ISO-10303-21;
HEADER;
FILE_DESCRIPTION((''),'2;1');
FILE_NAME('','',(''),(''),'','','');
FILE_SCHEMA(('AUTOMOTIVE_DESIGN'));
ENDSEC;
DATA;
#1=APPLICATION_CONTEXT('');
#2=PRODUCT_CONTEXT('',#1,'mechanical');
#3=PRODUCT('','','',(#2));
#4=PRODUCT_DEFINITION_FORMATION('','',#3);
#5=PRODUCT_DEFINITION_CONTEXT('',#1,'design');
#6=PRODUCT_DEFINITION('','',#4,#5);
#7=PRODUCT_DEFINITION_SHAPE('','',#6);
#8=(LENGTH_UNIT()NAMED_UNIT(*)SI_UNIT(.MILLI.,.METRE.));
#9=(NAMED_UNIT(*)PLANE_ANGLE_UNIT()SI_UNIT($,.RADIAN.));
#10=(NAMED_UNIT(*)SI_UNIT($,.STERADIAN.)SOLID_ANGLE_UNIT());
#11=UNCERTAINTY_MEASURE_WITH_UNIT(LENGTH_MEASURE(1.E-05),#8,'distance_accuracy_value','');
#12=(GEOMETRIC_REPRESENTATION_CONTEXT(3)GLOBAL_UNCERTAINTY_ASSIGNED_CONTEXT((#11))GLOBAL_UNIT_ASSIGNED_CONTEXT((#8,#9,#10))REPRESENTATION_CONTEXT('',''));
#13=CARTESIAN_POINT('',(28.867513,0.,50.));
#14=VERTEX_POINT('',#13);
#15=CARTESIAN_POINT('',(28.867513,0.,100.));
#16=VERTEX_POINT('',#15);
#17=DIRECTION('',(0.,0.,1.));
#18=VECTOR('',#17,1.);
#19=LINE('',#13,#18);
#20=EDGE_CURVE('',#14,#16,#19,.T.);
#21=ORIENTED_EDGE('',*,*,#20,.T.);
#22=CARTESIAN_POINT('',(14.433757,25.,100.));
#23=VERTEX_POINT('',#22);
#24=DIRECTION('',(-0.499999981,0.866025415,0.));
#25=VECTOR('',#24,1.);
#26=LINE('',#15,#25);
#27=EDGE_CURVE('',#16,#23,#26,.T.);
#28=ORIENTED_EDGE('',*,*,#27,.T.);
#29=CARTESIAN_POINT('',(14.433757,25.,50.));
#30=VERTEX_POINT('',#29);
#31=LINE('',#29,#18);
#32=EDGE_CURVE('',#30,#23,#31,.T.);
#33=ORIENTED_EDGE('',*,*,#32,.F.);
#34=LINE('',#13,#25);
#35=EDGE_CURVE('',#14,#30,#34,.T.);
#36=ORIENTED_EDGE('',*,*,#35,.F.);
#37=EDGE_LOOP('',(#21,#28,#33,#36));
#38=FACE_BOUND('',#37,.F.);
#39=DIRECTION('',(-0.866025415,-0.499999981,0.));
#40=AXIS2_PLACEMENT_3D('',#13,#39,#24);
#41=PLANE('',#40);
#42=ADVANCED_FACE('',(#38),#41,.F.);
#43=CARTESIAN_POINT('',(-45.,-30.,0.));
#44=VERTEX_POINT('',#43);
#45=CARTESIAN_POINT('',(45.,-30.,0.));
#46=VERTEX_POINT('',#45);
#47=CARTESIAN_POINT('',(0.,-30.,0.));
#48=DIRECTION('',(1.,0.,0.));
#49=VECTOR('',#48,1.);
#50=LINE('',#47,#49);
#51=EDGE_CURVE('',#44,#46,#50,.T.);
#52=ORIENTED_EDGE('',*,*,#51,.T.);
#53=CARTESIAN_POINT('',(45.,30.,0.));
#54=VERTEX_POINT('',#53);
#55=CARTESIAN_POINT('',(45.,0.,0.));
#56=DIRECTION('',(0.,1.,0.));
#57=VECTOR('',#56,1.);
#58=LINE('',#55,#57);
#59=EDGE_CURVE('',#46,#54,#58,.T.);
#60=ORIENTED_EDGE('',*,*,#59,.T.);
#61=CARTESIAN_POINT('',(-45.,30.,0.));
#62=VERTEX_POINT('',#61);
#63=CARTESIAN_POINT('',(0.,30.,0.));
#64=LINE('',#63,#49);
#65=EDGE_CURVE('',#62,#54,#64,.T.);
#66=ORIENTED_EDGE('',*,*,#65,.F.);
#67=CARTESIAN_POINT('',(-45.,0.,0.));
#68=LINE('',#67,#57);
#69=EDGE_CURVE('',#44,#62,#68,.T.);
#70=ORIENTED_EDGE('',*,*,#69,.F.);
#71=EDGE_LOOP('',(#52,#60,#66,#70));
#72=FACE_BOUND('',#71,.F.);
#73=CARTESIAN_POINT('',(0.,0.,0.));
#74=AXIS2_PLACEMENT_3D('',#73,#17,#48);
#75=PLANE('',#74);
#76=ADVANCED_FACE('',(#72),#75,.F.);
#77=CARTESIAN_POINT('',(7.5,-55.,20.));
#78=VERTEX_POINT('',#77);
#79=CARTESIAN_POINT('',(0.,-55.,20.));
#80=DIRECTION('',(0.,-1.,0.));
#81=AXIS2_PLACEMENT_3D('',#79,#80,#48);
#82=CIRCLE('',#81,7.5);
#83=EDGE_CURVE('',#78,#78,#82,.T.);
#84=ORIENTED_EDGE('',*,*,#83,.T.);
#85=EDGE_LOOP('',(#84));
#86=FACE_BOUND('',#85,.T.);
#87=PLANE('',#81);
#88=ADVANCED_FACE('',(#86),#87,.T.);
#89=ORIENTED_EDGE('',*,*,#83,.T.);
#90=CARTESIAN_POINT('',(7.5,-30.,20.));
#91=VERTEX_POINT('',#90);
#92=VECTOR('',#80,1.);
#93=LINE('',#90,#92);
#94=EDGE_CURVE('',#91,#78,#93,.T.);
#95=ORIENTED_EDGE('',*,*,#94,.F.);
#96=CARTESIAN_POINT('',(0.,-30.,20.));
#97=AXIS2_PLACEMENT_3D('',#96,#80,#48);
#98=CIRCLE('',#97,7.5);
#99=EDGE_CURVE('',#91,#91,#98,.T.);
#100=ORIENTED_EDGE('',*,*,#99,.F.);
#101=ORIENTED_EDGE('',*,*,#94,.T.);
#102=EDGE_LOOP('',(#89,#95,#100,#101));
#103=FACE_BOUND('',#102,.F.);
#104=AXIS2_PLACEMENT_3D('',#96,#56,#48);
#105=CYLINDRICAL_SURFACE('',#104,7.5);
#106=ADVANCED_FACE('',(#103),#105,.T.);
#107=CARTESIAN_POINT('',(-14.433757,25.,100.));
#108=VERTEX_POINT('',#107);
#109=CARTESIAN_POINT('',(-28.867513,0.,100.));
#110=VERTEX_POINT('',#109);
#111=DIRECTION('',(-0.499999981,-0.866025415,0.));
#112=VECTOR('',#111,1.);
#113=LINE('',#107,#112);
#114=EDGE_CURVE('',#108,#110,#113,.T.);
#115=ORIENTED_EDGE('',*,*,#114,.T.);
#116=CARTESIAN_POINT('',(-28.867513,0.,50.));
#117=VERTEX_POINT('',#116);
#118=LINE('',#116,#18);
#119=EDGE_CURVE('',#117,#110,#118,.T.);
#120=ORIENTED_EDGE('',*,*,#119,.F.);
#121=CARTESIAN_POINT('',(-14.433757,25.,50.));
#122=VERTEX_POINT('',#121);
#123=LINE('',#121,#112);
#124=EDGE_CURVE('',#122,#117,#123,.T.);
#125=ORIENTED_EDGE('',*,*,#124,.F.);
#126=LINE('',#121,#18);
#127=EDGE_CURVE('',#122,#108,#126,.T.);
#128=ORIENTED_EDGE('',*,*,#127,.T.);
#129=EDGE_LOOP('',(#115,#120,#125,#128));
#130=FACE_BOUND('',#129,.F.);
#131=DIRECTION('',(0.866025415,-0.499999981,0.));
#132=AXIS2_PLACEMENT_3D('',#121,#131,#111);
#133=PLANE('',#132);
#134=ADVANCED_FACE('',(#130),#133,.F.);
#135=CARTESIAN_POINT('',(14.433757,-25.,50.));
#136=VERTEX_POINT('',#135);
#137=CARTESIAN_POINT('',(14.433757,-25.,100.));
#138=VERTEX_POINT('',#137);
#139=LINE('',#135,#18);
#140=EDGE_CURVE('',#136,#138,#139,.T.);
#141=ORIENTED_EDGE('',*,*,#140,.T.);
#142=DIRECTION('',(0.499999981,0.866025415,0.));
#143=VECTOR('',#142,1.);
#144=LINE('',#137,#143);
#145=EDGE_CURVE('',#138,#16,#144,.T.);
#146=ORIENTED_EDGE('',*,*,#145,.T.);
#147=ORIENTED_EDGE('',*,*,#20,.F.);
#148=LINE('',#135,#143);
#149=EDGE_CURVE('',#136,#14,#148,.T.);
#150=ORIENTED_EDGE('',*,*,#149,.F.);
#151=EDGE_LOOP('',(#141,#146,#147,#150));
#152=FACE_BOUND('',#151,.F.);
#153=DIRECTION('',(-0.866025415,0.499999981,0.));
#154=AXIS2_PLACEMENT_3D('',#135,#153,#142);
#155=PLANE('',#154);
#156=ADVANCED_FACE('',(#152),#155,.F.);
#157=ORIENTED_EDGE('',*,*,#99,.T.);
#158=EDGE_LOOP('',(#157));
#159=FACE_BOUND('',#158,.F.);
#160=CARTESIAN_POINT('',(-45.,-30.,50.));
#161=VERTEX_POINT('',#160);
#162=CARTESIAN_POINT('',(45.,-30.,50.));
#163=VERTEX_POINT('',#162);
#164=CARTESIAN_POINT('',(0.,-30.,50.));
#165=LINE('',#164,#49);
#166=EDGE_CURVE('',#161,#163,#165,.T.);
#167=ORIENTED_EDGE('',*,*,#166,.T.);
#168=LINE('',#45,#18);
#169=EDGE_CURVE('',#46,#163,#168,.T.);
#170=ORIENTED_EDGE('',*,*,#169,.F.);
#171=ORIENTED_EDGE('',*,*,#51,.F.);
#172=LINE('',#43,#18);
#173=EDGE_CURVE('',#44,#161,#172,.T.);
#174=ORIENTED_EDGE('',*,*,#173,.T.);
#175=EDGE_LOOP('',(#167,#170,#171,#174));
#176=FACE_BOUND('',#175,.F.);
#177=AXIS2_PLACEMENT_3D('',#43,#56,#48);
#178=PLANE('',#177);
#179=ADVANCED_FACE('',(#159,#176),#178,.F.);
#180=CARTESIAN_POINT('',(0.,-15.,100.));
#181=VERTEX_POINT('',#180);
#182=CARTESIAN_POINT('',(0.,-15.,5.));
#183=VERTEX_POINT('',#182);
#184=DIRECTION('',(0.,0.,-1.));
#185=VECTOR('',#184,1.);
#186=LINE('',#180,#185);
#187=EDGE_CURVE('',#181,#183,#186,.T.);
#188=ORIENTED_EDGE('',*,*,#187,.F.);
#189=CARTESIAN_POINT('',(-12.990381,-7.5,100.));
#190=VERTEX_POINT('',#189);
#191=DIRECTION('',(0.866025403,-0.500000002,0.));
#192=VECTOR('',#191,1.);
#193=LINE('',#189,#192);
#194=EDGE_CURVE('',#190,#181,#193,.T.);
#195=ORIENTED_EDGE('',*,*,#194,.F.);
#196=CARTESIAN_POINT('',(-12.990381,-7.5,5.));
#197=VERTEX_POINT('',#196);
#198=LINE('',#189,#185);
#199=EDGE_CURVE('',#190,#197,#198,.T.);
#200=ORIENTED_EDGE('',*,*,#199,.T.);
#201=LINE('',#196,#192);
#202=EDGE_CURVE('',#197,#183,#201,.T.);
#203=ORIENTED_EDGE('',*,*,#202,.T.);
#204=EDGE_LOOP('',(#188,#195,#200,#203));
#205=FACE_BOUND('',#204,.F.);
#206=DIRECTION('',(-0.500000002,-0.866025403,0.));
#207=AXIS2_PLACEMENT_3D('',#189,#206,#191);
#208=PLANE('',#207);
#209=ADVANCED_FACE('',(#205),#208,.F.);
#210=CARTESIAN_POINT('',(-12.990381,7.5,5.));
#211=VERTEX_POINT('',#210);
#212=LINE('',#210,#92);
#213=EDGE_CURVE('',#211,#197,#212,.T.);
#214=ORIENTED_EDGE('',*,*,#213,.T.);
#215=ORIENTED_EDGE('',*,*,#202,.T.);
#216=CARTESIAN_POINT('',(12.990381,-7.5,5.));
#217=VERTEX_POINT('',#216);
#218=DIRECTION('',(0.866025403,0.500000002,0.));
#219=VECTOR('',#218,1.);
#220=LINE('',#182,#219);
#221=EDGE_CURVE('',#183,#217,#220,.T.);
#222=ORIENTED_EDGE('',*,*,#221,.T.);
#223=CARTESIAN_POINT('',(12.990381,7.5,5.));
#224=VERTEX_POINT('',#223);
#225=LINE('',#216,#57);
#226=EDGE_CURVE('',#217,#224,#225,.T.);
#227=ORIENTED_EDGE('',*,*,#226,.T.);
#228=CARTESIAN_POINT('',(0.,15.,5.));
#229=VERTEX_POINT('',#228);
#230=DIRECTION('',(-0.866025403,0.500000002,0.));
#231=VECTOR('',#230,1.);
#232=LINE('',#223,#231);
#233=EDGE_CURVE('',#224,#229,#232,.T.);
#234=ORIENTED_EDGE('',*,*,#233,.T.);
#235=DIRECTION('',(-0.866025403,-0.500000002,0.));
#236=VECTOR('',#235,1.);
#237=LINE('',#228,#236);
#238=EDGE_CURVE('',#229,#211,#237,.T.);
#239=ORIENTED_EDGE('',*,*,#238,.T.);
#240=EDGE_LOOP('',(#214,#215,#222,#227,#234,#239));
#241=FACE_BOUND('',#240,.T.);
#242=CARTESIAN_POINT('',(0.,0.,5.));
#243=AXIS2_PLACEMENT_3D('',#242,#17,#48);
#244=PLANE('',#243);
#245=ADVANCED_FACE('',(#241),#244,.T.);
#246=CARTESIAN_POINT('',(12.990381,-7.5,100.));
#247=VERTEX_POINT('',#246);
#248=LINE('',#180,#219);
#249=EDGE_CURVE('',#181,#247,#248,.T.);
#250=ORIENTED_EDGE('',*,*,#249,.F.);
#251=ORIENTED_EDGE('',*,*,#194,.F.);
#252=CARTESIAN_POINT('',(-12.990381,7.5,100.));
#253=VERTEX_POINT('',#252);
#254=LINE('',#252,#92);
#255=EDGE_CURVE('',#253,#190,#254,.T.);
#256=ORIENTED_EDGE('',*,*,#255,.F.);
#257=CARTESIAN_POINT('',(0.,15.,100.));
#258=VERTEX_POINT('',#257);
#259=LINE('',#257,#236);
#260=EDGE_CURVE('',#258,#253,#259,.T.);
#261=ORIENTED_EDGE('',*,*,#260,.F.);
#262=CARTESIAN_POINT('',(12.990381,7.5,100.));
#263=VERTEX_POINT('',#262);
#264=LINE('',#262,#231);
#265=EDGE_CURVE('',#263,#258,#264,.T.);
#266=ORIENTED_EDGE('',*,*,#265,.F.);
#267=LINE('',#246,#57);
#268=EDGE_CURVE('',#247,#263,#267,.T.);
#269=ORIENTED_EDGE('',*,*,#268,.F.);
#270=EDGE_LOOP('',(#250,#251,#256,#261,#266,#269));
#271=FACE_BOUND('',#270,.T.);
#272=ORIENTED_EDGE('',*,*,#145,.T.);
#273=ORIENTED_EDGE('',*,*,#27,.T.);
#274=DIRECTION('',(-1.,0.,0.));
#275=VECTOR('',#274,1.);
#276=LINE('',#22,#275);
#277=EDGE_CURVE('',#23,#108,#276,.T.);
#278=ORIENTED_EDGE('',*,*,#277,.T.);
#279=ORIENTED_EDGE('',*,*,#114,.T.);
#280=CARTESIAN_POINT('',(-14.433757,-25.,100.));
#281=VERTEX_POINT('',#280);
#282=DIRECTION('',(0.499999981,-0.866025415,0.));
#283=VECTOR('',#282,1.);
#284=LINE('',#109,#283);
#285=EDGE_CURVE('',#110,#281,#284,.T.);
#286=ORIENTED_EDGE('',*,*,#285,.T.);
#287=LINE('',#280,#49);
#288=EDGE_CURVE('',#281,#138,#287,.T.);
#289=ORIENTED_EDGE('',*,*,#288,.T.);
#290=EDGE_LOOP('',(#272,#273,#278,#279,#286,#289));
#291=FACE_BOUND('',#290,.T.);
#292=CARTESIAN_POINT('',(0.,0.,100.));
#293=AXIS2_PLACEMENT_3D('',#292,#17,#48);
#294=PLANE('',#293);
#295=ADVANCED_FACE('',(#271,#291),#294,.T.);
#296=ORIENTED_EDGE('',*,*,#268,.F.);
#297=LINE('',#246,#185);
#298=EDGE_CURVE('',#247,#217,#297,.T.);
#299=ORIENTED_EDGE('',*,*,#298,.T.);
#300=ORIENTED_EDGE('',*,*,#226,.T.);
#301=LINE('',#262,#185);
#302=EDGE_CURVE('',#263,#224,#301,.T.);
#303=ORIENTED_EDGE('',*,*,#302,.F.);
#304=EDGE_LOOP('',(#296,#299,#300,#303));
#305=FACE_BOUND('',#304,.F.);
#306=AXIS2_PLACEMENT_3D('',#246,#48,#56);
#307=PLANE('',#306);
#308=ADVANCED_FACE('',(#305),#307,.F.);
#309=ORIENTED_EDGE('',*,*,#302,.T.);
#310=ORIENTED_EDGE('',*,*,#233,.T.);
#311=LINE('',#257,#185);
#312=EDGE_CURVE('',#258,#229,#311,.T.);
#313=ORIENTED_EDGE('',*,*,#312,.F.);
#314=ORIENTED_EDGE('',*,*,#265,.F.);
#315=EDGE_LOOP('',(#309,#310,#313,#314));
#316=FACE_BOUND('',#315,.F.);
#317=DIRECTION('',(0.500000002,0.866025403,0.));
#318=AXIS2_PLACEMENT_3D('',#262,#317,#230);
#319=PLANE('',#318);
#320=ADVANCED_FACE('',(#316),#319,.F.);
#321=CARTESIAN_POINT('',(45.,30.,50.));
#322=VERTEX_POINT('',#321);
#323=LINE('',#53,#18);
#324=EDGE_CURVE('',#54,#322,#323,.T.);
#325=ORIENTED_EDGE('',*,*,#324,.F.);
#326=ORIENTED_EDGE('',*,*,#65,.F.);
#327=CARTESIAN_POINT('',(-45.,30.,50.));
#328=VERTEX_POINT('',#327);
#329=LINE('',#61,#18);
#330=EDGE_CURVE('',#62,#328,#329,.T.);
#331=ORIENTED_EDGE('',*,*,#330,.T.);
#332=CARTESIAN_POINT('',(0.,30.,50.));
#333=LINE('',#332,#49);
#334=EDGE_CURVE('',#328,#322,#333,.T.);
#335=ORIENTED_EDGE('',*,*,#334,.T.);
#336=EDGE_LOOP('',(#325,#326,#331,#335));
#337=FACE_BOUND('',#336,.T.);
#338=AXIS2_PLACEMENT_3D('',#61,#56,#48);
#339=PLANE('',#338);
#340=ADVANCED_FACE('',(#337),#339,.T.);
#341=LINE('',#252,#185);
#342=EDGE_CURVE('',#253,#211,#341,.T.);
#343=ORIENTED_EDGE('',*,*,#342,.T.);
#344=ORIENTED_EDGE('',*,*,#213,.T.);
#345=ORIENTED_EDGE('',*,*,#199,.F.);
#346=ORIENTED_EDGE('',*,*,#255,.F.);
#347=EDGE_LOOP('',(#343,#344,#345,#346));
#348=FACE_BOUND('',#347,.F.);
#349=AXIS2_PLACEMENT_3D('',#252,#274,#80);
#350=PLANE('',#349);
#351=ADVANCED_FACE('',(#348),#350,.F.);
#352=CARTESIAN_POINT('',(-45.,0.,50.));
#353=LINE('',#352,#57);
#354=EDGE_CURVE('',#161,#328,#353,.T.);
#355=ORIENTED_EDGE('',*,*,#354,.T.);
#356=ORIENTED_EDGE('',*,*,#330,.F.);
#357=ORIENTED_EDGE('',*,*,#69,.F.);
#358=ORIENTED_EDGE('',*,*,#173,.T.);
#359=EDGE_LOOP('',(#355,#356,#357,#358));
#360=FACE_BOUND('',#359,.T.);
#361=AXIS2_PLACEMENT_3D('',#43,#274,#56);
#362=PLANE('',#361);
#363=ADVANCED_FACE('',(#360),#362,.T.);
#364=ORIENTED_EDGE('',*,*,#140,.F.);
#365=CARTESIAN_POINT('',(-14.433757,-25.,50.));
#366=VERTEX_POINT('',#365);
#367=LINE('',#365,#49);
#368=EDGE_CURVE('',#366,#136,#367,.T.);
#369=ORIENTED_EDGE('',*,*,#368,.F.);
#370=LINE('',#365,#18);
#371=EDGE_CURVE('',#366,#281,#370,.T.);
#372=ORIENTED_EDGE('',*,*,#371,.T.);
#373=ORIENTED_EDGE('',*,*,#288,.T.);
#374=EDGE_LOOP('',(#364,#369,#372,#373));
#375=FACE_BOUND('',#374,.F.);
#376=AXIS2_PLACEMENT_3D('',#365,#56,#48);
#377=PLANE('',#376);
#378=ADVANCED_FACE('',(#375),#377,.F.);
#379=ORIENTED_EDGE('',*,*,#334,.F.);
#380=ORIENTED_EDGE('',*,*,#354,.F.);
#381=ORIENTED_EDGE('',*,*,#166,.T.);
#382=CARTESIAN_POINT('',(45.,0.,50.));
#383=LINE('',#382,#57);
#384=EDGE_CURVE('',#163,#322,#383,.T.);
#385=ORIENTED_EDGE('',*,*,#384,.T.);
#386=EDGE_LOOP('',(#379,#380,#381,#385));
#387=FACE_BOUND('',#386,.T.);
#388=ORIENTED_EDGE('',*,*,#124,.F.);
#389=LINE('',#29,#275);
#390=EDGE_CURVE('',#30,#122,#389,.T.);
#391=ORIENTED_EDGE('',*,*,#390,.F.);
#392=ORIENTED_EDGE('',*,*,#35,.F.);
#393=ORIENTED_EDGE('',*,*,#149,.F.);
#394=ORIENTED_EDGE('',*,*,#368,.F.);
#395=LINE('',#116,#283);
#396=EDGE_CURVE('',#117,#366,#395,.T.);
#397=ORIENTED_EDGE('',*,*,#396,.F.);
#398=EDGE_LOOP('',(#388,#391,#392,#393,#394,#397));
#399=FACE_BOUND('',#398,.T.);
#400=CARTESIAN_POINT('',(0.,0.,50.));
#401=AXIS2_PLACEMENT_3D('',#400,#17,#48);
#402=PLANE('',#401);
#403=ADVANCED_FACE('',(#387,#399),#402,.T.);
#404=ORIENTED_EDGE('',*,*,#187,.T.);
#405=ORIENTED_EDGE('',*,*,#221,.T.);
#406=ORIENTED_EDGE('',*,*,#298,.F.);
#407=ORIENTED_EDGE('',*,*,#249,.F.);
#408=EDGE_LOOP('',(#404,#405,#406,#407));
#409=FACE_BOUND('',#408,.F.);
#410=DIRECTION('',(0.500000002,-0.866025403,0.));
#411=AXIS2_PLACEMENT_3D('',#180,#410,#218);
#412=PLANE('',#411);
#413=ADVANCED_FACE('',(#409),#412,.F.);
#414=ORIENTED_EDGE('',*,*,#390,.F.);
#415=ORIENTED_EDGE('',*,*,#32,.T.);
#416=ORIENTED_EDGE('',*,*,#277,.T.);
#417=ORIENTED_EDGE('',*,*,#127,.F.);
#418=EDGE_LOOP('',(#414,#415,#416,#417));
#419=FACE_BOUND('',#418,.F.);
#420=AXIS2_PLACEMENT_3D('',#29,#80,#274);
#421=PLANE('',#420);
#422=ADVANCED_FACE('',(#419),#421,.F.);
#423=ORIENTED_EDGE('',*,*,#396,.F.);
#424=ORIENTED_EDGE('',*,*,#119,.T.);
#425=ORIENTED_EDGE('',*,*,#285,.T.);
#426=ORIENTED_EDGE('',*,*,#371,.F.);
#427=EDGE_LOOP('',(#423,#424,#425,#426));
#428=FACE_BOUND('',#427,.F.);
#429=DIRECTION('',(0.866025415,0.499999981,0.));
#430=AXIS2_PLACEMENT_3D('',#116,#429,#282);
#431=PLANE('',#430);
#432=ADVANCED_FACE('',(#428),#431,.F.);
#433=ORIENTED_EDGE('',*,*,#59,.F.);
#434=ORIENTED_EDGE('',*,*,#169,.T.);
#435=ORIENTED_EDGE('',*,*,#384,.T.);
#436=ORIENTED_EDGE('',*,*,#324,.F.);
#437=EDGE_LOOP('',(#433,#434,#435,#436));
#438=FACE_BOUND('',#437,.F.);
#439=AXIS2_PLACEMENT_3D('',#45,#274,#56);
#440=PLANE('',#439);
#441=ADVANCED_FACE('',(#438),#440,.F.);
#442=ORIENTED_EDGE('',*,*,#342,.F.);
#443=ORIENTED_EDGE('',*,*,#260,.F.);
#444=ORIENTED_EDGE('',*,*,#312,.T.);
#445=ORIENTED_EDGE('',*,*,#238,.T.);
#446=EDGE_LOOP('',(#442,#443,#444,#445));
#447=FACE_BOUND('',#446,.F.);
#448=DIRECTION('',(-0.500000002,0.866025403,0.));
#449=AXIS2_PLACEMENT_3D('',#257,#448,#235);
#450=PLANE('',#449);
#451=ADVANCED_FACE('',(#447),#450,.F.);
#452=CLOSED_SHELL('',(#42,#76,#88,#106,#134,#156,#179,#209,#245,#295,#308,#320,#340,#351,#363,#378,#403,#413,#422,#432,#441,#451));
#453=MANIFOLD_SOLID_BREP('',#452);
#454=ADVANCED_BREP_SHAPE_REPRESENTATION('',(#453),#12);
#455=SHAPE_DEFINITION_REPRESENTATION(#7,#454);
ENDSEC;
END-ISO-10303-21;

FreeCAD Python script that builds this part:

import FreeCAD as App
import Part
import Sketcher
from FreeCAD import Vector
Q = App.Units.Quantity

doc = App.newDocument("Part")
body = doc.addObject("PartDesign::Body", "Body")

# Sketch on XY plane
sketch1 = body.newObject("Sketcher::SketchObject", "Sketch")
sketch1.AttachmentSupport = (doc.getObject("XY_Plane"), [""])
sketch1.MapMode = "FlatFace"
sketch1.addGeometry([
    Part.LineSegment(Vector(-45, 30, 0), Vector(-45, -30, 0)),
    Part.LineSegment(Vector(-45, -30, 0), Vector(45, -30, 0)),
    Part.LineSegment(Vector(45, -30, 0), Vector(45, 30, 0)),
    Part.LineSegment(Vector(45, 30, 0), Vector(-45, 30, 0)),
], False)
sketch1.addConstraint([
    Sketcher.Constraint("Coincident", 0, 2, 1, 1),
    Sketcher.Constraint("Coincident", 1, 2, 2, 1),
    Sketcher.Constraint("Coincident", 2, 2, 3, 1),
    Sketcher.Constraint("Coincident", 3, 2, 0, 1),
    Sketcher.Constraint("Vertical", 0),
    Sketcher.Constraint("Horizontal", 1),
    Sketcher.Constraint("Vertical", 2),
    Sketcher.Constraint("Horizontal", 3),
    Sketcher.Constraint("Symmetric", 0, 2, 2, 2, -1, 1),
    Sketcher.Constraint("DistanceX", 1, 1, 1, 2, 90.0),
    Sketcher.Constraint("DistanceY", 0, 2, 0, 1, 60.0),
])
pad1 = body.newObject("PartDesign::Pad", "Pad")
pad1.Profile = sketch1
pad1.Length = 50

# Sketch on XZ plane
sketch2 = body.newObject("Sketcher::SketchObject", "Sketch001")
sketch2.AttachmentSupport = (doc.getObject("XZ_Plane"), [""])
sketch2.MapMode = "FlatFace"
sketch2.AttachmentOffset = App.Placement(Vector(0, 0, 30), App.Rotation())
sketch2.addGeometry(Part.Circle(Vector(0, 20, 0), Vector(0, 0, 1), 8), False)
sketch2.addConstraint([
    Sketcher.Constraint("PointOnObject", 0, 3, -2),
    Sketcher.Constraint("Diameter", 0, 15.0),
    Sketcher.Constraint("DistanceY", -1, 1, 0, 3, 20.0),
])
pad2 = body.newObject("PartDesign::Pad", "Pad001")
pad2.Profile = sketch2
pad2.Length = 25

# Sketch on XY plane
sketch3 = body.newObject("Sketcher::SketchObject", "Sketch002")
sketch3.AttachmentSupport = (doc.getObject("XY_Plane"), [""])
sketch3.MapMode = "FlatFace"
sketch3.AttachmentOffset = App.Placement(Vector(0, 0, 50), App.Rotation())
sketch3.addGeometry([
    Part.LineSegment(Vector(-14, -25, 0), Vector(14, -25, 0)),  # 0
    Part.LineSegment(Vector(14, -25, 0), Vector(29, 0, 0)),  # 1
    Part.LineSegment(Vector(29, 0, 0), Vector(14, 25, 0)),  # 2
    Part.LineSegment(Vector(14, 25, 0), Vector(-14, 25, 0)),  # 3
    Part.LineSegment(Vector(-14, 25, 0), Vector(-29, 0, 0)),  # 4
    Part.LineSegment(Vector(-29, 0, 0), Vector(-14, -25, 0)),  # 5
], False)
sketch3.addConstraint([
    Sketcher.Constraint("Coincident", 0, 2, 1, 1),
    Sketcher.Constraint("Coincident", 1, 2, 2, 1),
    Sketcher.Constraint("Coincident", 2, 2, 3, 1),
    Sketcher.Constraint("Coincident", 3, 2, 4, 1),
    Sketcher.Constraint("Coincident", 4, 2, 5, 1),
    Sketcher.Constraint("Coincident", 5, 2, 0, 1),
    Sketcher.Constraint("Horizontal", 0),
    Sketcher.Constraint("Horizontal", 3),
    Sketcher.Constraint("Symmetric", 0, 2, 3, 2, -1, 1),
    Sketcher.Constraint("Symmetric", 1, 2, 4, 2, -1, 1),
    Sketcher.Constraint("PointOnObject", 1, 2, -1),
    Sketcher.Constraint("Parallel", 2, 5),
    Sketcher.Constraint("Vertical", 0, 2, 2, 2),
    Sketcher.Constraint("Angle", 1, Q("60.000001 deg")),
    Sketcher.Constraint("DistanceY", 0, 2, -1, 1, 25.0),
    Sketcher.Constraint("DistanceX", 0, 1, 0, 2, 28.867514),
])
pad3 = body.newObject("PartDesign::Pad", "Pad002")
pad3.Profile = sketch3
pad3.Length = 50

# Sketch on XY plane
sketch4 = body.newObject("Sketcher::SketchObject", "Sketch003")
sketch4.AttachmentSupport = (doc.getObject("XY_Plane"), [""])
sketch4.MapMode = "FlatFace"
sketch4.AttachmentOffset = App.Placement(Vector(0, 0, 100), App.Rotation())
sketch4.addGeometry([
    Part.LineSegment(Vector(13, 8, 0), Vector(0, 15, 0)),  # 0
    Part.LineSegment(Vector(0, 15, 0), Vector(-13, 8, 0)),  # 1
    Part.LineSegment(Vector(-13, 8, 0), Vector(-13, -8, 0)),  # 2
    Part.LineSegment(Vector(-13, -8, 0), Vector(0, -15, 0)),  # 3
    Part.LineSegment(Vector(0, -15, 0), Vector(13, -8, 0)),  # 4
    Part.LineSegment(Vector(13, -8, 0), Vector(13, 8, 0)),  # 5
], False)
sketch4.addConstraint([
    Sketcher.Constraint("Coincident", 0, 2, 1, 1),
    Sketcher.Constraint("Coincident", 1, 2, 2, 1),
    Sketcher.Constraint("Coincident", 2, 2, 3, 1),
    Sketcher.Constraint("Coincident", 3, 2, 4, 1),
    Sketcher.Constraint("Coincident", 4, 2, 5, 1),
    Sketcher.Constraint("Coincident", 5, 2, 0, 1),
    Sketcher.Constraint("Vertical", 2),
    Sketcher.Constraint("Vertical", 5),
    Sketcher.Constraint("Symmetric", 0, 2, 3, 2, -1, 1),
    Sketcher.Constraint("Symmetric", 1, 2, 4, 2, -1, 1),
    Sketcher.Constraint("PointOnObject", 0, 2, -2),
    Sketcher.Constraint("Parallel", 0, 3),
    Sketcher.Constraint("Horizontal", 2, 2, 4, 2),
    Sketcher.Constraint("DistanceY", 2, 2, 2, 1, 15.0),
    Sketcher.Constraint("Angle", 0, Q("150 deg")),
    Sketcher.Constraint("Distance", 0, 15.0),
])
pocket1 = body.newObject("PartDesign::Pocket", "Pocket")
pocket1.Profile = sketch4
pocket1.Length = 95

doc.recompute()
